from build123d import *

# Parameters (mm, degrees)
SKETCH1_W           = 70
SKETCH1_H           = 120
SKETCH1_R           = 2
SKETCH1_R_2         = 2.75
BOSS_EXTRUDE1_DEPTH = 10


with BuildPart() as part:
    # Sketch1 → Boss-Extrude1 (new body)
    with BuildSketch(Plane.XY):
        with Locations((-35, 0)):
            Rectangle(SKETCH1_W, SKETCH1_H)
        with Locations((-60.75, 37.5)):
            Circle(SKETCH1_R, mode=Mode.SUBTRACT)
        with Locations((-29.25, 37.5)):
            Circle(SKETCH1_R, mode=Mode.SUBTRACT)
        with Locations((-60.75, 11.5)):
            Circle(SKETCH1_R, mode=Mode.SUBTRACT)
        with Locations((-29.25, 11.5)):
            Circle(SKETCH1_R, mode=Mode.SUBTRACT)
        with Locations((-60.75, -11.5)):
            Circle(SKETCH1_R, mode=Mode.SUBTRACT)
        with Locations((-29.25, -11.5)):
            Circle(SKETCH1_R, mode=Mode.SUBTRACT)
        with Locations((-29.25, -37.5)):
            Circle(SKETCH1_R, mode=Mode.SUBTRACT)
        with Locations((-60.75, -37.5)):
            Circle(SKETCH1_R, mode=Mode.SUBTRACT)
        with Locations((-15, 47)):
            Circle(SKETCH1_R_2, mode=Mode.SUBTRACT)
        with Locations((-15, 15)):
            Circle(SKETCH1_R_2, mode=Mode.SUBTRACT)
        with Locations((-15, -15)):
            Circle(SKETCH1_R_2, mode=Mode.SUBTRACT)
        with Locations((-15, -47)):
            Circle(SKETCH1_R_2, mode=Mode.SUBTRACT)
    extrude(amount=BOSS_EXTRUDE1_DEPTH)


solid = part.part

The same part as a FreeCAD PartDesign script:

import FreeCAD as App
import Part
import Sketcher
Q = App.Units.Quantity

doc = App.newDocument("Part")
params = doc.addObject("Spreadsheet::Sheet", "Params")
for row, (alias, value) in enumerate([
    ("sketch1_diameter", "4 mm"),
    ("sketch1_diameter2", "5.5 mm"),
    ("sketch1_width", "70 mm"),
    ("sketch1_height", "120 mm"),
    ("pad1_length", "10 mm"),
], start=1):
    params.set(f"A{row}", alias)
    params.set(f"B{row}", "=" + value)
    params.setAlias(f"B{row}", alias)

body = doc.addObject("PartDesign::Body", "Body")

# Sketch on XY plane
sketch1 = body.newObject("Sketcher::SketchObject", "Sketch")
sketch1.AttachmentSupport = (doc.getObject("XY_Plane"), [""])
sketch1.MapMode = "FlatFace"
sketch1.addGeometry([
    Part.LineSegment(App.Vector(-70, 60, 0), App.Vector(-70, -60, 0)),  # 0
    Part.LineSegment(App.Vector(-70, -60, 0), App.Vector(0, -60, 0)),  # 1
    Part.LineSegment(App.Vector(0, -60, 0), App.Vector(0, 60, 0)),  # 2
    Part.LineSegment(App.Vector(0, 60, 0), App.Vector(-70, 60, 0)),  # 3
    Part.Circle(App.Vector(-60.8, -37.5, 0), App.Vector(0, 0, 1), 2),  # 4
    Part.Circle(App.Vector(-60.8, -11.5, 0), App.Vector(0, 0, 1), 2),  # 5
    Part.Circle(App.Vector(-29.2, -37.5, 0), App.Vector(0, 0, 1), 2),  # 6
    Part.Circle(App.Vector(-15, -47, 0), App.Vector(0, 0, 1), 2.8),  # 7
    Part.Circle(App.Vector(-29.2, -11.5, 0), App.Vector(0, 0, 1), 2),  # 8
    Part.Circle(App.Vector(-15, -15, 0), App.Vector(0, 0, 1), 2.8),  # 9
    Part.Circle(App.Vector(-60.8, 11.5, 0), App.Vector(0, 0, 1), 2),  # 10
    Part.Circle(App.Vector(-60.8, 37.5, 0), App.Vector(0, 0, 1), 2),  # 11
    Part.Circle(App.Vector(-29.2, 11.5, 0), App.Vector(0, 0, 1), 2),  # 12
    Part.Circle(App.Vector(-15, 15, 0), App.Vector(0, 0, 1), 2.8),  # 13
    Part.Circle(App.Vector(-29.2, 37.5, 0), App.Vector(0, 0, 1), 2),  # 14
    Part.Circle(App.Vector(-15, 47, 0), App.Vector(0, 0, 1), 2.8),  # 15
], False)
sketch1.addConstraint([
    Sketcher.Constraint("Coincident", 0, 2, 1, 1),
    Sketcher.Constraint("Coincident", 1, 2, 2, 1),
    Sketcher.Constraint("Coincident", 2, 2, 3, 1),
    Sketcher.Constraint("Coincident", 3, 2, 0, 1),
    Sketcher.Constraint("Vertical", 0),
    Sketcher.Constraint("Horizontal", 1),
    Sketcher.Constraint("Vertical", 2),
    Sketcher.Constraint("Horizontal", 3),
    Sketcher.Constraint("Equal", 4, 5),
    Sketcher.Constraint("Equal", 5, 6),
    Sketcher.Constraint("Equal", 6, 8),
    Sketcher.Constraint("Equal", 7, 9),
    Sketcher.Constraint("Equal", 8, 10),
    Sketcher.Constraint("Equal", 10, 11),
    Sketcher.Constraint("Equal", 11, 12),
    Sketcher.Constraint("Equal", 9, 13),
    Sketcher.Constraint("Equal", 12, 14),
    Sketcher.Constraint("Equal", 13, 15),
    Sketcher.Constraint("Symmetric", 1, 2, 2, 2, -1, 1),
    Sketcher.Constraint("Symmetric", 5, 3, 10, 3, -1),
    Sketcher.Constraint("Symmetric", 4, 3, 11, 3, -1),
    Sketcher.Constraint("Symmetric", 8, 3, 12, 3, -1),
    Sketcher.Constraint("Symmetric", 9, 3, 13, 3, -1),
    Sketcher.Constraint("Symmetric", 6, 3, 14, 3, -1),
    Sketcher.Constraint("Symmetric", 7, 3, 15, 3, -1),
    Sketcher.Constraint("Horizontal", 4, 3, 6, 3),
    Sketcher.Constraint("Horizontal", 5, 3, 8, 3),
    Sketcher.Constraint("Vertical", 4, 3, 5, 3),
    Sketcher.Constraint("Vertical", 6, 3, 8, 3),
    Sketcher.Constraint("Vertical", 7, 3, 9, 3),
    Sketcher.Constraint("Diameter", 4, Q("4 mm")),
    Sketcher.Constraint("Diameter", 7, Q("5.5 mm")),
    Sketcher.Constraint("DistanceX", 1, 1, 1, 2, Q("70 mm")),
    Sketcher.Constraint("DistanceY", 0, 2, 0, 1, Q("120 mm")),
    Sketcher.Constraint("DistanceX", 7, 3, -1, 1, Q("15 mm")),
    Sketcher.Constraint("DistanceY", 7, 3, -1, 1, Q("47 mm")),
    Sketcher.Constraint("DistanceY", 9, 3, -1, 1, Q("15 mm")),
    Sketcher.Constraint("DistanceY", 4, 3, 5, 3, Q("26 mm")),
    Sketcher.Constraint("DistanceY", 5, 3, 10, 3, Q("23 mm")),
    Sketcher.Constraint("DistanceX", 4, 3, 6, 3, Q("31.5 mm")),
    Sketcher.Constraint("DistanceX", 4, 3, -1, 1, Q("60.75 mm")),
])
sketch1.setExpression("Constraints[30]", "Params.sketch1_diameter")
sketch1.setExpression("Constraints[31]", "Params.sketch1_diameter2")
sketch1.setExpression("Constraints[32]", "Params.sketch1_width")
sketch1.setExpression("Constraints[33]", "Params.sketch1_height")
pad1 = body.newObject("PartDesign::Pad", "Pad")
pad1.Profile = sketch1
pad1.setExpression("Length", "Params.pad1_length")

doc.recompute()
